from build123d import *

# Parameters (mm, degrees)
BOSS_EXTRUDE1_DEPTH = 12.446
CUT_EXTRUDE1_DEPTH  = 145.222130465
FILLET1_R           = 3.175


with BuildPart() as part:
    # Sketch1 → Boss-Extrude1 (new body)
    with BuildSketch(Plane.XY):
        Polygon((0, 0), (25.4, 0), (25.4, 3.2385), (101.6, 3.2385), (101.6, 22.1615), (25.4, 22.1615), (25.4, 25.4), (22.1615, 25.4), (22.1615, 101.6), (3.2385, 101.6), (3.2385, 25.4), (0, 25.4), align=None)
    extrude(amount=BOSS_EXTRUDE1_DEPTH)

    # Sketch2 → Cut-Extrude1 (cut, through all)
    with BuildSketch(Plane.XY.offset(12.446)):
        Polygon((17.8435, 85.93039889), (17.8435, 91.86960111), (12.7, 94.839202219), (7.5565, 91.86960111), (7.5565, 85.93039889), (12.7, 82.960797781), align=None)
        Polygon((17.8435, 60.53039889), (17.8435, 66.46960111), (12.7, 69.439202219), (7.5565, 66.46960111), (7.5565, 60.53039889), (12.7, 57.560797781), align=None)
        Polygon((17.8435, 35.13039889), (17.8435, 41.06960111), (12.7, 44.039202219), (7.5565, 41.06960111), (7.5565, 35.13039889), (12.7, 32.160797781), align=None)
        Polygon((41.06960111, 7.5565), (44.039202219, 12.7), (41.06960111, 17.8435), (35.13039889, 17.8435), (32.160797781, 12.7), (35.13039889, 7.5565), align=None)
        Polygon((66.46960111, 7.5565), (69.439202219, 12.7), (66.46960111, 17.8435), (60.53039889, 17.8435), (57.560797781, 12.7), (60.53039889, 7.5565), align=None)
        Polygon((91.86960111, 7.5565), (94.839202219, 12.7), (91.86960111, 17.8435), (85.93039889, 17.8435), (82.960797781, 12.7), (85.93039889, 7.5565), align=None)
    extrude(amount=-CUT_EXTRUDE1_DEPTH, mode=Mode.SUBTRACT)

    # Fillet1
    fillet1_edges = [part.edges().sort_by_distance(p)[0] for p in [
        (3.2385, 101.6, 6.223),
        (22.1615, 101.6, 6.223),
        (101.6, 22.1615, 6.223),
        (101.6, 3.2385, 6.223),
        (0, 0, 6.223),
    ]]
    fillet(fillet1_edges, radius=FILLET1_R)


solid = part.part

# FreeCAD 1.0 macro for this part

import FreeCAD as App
import Part
import Sketcher
from FreeCAD import Vector
Q = App.Units.Quantity


def edges_at(feature, points):
    """Names of the edges that pass closest to the given points."""
    edges = feature.Shape.Edges
    near = lambda p: min(range(len(edges)), key=lambda i: edges[i].distToShape(Part.Vertex(*p))[0])
    return sorted({f"Edge{near(p) + 1}" for p in points})

doc = App.newDocument("Part")
body = doc.addObject("PartDesign::Body", "Body")

# Sketch on XY plane
sketch1 = doc.addObject("Sketcher::SketchObject", "Sketch")
body.addObject(sketch1)
sketch1.AttachmentSupport = (doc.XY_Plane, [""])
sketch1.MapMode = "FlatFace"
sketch1.addGeometry(Part.LineSegment(Vector(0, 0, 0), Vector(25.4, 0, 0)), False)
sketch1.addGeometry(Part.LineSegment(Vector(25.4, 0, 0), Vector(25.4, 3.2385, 0)), False)
sketch1.addGeometry(Part.LineSegment(Vector(25.4, 3.2385, 0), Vector(101.6, 3.2385, 0)), False)
sketch1.addGeometry(Part.LineSegment(Vector(101.6, 3.2385, 0), Vector(101.6, 22.1615, 0)), False)
sketch1.addGeometry(Part.LineSegment(Vector(101.6, 22.1615, 0), Vector(25.4, 22.1615, 0)), False)
sketch1.addGeometry(Part.LineSegment(Vector(25.4, 22.1615, 0), Vector(25.4, 25.4, 0)), False)
sketch1.addGeometry(Part.LineSegment(Vector(25.4, 25.4, 0), Vector(22.1615, 25.4, 0)), False)
sketch1.addGeometry(Part.LineSegment(Vector(22.1615, 25.4, 0), Vector(22.1615, 101.6, 0)), False)
sketch1.addGeometry(Part.LineSegment(Vector(22.1615, 101.6, 0), Vector(3.2385, 101.6, 0)), False)
sketch1.addGeometry(Part.LineSegment(Vector(3.2385, 101.6, 0), Vector(3.2385, 25.4, 0)), False)
sketch1.addGeometry(Part.LineSegment(Vector(3.2385, 25.4, 0), Vector(0, 25.4, 0)), False)
sketch1.addGeometry(Part.LineSegment(Vector(0, 25.4, 0), Vector(0, 0, 0)), False)
sketch1.addConstraint(Sketcher.Constraint("Coincident", 0, 2, 1, 1))
sketch1.addConstraint(Sketcher.Constraint("Coincident", 1, 2, 2, 1))
sketch1.addConstraint(Sketcher.Constraint("Coincident", 2, 2, 3, 1))
sketch1.addConstraint(Sketcher.Constraint("Coincident", 3, 2, 4, 1))
sketch1.addConstraint(Sketcher.Constraint("Coincident", 4, 2, 5, 1))
sketch1.addConstraint(Sketcher.Constraint("Coincident", 5, 2, 6, 1))
sketch1.addConstraint(Sketcher.Constraint("Coincident", 6, 2, 7, 1))
sketch1.addConstraint(Sketcher.Constraint("Coincident", 7, 2, 8, 1))
sketch1.addConstraint(Sketcher.Constraint("Coincident", 8, 2, 9, 1))
sketch1.addConstraint(Sketcher.Constraint("Coincident", 9, 2, 10, 1))
sketch1.addConstraint(Sketcher.Constraint("Coincident", 10, 2, 11, 1))
sketch1.addConstraint(Sketcher.Constraint("Coincident", 11, 2, 0, 1))
sketch1.addConstraint(Sketcher.Constraint("Horizontal", 0))
sketch1.addConstraint(Sketcher.Constraint("Vertical", 1))
sketch1.addConstraint(Sketcher.Constraint("Horizontal", 2))
sketch1.addConstraint(Sketcher.Constraint("Vertical", 3))
sketch1.addConstraint(Sketcher.Constraint("Horizontal", 4))
sketch1.addConstraint(Sketcher.Constraint("Vertical", 5))
sketch1.addConstraint(Sketcher.Constraint("Horizontal", 6))
sketch1.addConstraint(Sketcher.Constraint("Vertical", 7))
sketch1.addConstraint(Sketcher.Constraint("Horizontal", 8))
sketch1.addConstraint(Sketcher.Constraint("Vertical", 9))
sketch1.addConstraint(Sketcher.Constraint("Horizontal", 10))
sketch1.addConstraint(Sketcher.Constraint("Vertical", 11))
sketch1.addConstraint(Sketcher.Constraint("Coincident", 11, 2, -1, 1))
sketch1.addConstraint(Sketcher.Constraint("Horizontal", 6, 2, 9, 2))
sketch1.addConstraint(Sketcher.Constraint("Vertical", 1, 2, 4, 2))
sketch1.addConstraint(Sketcher.Constraint("Equal", 6, 10))
sketch1.addConstraint(Sketcher.Constraint("Equal", 10, 1))
sketch1.addConstraint(Sketcher.Constraint("Equal", 8, 3))
sketch1.addConstraint(Sketcher.Constraint("Equal", 1, 5))
sketch1.addConstraint(Sketcher.Constraint("Equal", 4, 7))
sketch1.addConstraint(Sketcher.Constraint("DistanceX", 0, 1, 0, 2, Q("1 in")))
sketch1.addConstraint(Sketcher.Constraint("DistanceX", 2, 1, 2, 2, Q("3 in")))
sketch1.addConstraint(Sketcher.Constraint("DistanceX", 8, 2, 8, 1, Q("0.745 in")))
pad1 = doc.addObject("PartDesign::Pad", "Pad")
body.addObject(pad1)
pad1.Profile = sketch1
pad1.Length = Q("0.49 in")

# Sketch on XY plane
sketch2 = doc.addObject("Sketcher::SketchObject", "Sketch001")
body.addObject(sketch2)
sketch2.AttachmentSupport = (doc.XY_Plane, [""])
sketch2.MapMode = "FlatFace"
sketch2.AttachmentOffset = App.Placement(Vector(0, 0, 0.49 * 25.4), App.Rotation())
sketch2.addGeometry(Part.LineSegment(Vector(17.8435, 85.930399, 0), Vector(17.8435, 91.869601, 0)), False)
sketch2.addGeometry(Part.LineSegment(Vector(17.8435, 91.869601, 0), Vector(12.7, 94.839202, 0)), False)
sketch2.addGeometry(Part.LineSegment(Vector(12.7, 94.839202, 0), Vector(7.5565, 91.869601, 0)), False)
sketch2.addGeometry(Part.LineSegment(Vector(7.5565, 91.869601, 0), Vector(7.5565, 85.930399, 0)), False)
sketch2.addGeometry(Part.LineSegment(Vector(7.5565, 85.930399, 0), Vector(12.7, 82.960798, 0)), False)
sketch2.addGeometry(Part.LineSegment(Vector(12.7, 82.960798, 0), Vector(17.8435, 85.930399, 0)), False)
sketch2.addGeometry(Part.LineSegment(Vector(17.8435, 60.530399, 0), Vector(17.8435, 66.469601, 0)), False)
sketch2.addGeometry(Part.LineSegment(Vector(17.8435, 66.469601, 0), Vector(12.7, 69.439202, 0)), False)
sketch2.addGeometry(Part.LineSegment(Vector(12.7, 69.439202, 0), Vector(7.5565, 66.469601, 0)), False)
sketch2.addGeometry(Part.LineSegment(Vector(7.5565, 66.469601, 0), Vector(7.5565, 60.530399, 0)), False)
sketch2.addGeometry(Part.LineSegment(Vector(7.5565, 60.530399, 0), Vector(12.7, 57.560798, 0)), False)
sketch2.addGeometry(Part.LineSegment(Vector(12.7, 57.560798, 0), Vector(17.8435, 60.530399, 0)), False)
sketch2.addGeometry(Part.LineSegment(Vector(17.8435, 35.130399, 0), Vector(17.8435, 41.069601, 0)), False)
sketch2.addGeometry(Part.LineSegment(Vector(17.8435, 41.069601, 0), Vector(12.7, 44.039202, 0)), False)
sketch2.addGeometry(Part.LineSegment(Vector(12.7, 44.039202, 0), Vector(7.5565, 41.069601, 0)), False)
sketch2.addGeometry(Part.LineSegment(Vector(7.5565, 41.069601, 0), Vector(7.5565, 35.130399, 0)), False)
sketch2.addGeometry(Part.LineSegment(Vector(7.5565, 35.130399, 0), Vector(12.7, 32.160798, 0)), False)
sketch2.addGeometry(Part.LineSegment(Vector(12.7, 32.160798, 0), Vector(17.8435, 35.130399, 0)), False)
sketch2.addGeometry(Part.LineSegment(Vector(41.069601, 7.5565, 0), Vector(44.039202, 12.7, 0)), False)
sketch2.addGeometry(Part.LineSegment(Vector(44.039202, 12.7, 0), Vector(41.069601, 17.8435, 0)), False)
sketch2.addGeometry(Part.LineSegment(Vector(41.069601, 17.8435, 0), Vector(35.130399, 17.8435, 0)), False)
sketch2.addGeometry(Part.LineSegment(Vector(35.130399, 17.8435, 0), Vector(32.160798, 12.7, 0)), False)
sketch2.addGeometry(Part.LineSegment(Vector(32.160798, 12.7, 0), Vector(35.130399, 7.5565, 0)), False)
sketch2.addGeometry(Part.LineSegment(Vector(35.130399, 7.5565, 0), Vector(41.069601, 7.5565, 0)), False)
sketch2.addGeometry(Part.LineSegment(Vector(66.469601, 7.5565, 0), Vector(69.439202, 12.7, 0)), False)
sketch2.addGeometry(Part.LineSegment(Vector(69.439202, 12.7, 0), Vector(66.469601, 17.8435, 0)), False)
sketch2.addGeometry(Part.LineSegment(Vector(66.469601, 17.8435, 0), Vector(60.530399, 17.8435, 0)), False)
sketch2.addGeometry(Part.LineSegment(Vector(60.530399, 17.8435, 0), Vector(57.560798, 12.7, 0)), False)
sketch2.addGeometry(Part.LineSegment(Vector(57.560798, 12.7, 0), Vector(60.530399, 7.5565, 0)), False)
sketch2.addGeometry(Part.LineSegment(Vector(60.530399, 7.5565, 0), Vector(66.469601, 7.5565, 0)), False)
sketch2.addGeometry(Part.LineSegment(Vector(91.869601, 7.5565, 0), Vector(94.839202, 12.7, 0)), False)
sketch2.addGeometry(Part.LineSegment(Vector(94.839202, 12.7, 0), Vector(91.869601, 17.8435, 0)), False)
sketch2.addGeometry(Part.LineSegment(Vector(91.869601, 17.8435, 0), Vector(85.930399, 17.8435, 0)), False)
sketch2.addGeometry(Part.LineSegment(Vector(85.930399, 17.8435, 0), Vector(82.960798, 12.7, 0)), False)
sketch2.addGeometry(Part.LineSegment(Vector(82.960798, 12.7, 0), Vector(85.930399, 7.5565, 0)), False)
sketch2.addGeometry(Part.LineSegment(Vector(85.930399, 7.5565, 0), Vector(91.869601, 7.5565, 0)), False)
sketch2.addConstraint(Sketcher.Constraint("Coincident", 0, 2, 1, 1))
sketch2.addConstraint(Sketcher.Constraint("Coincident", 1, 2, 2, 1))
sketch2.addConstraint(Sketcher.Constraint("Coincident", 2, 2, 3, 1))
sketch2.addConstraint(Sketcher.Constraint("Coincident", 3, 2, 4, 1))
sketch2.addConstraint(Sketcher.Constraint("Coincident", 4, 2, 5, 1))
sketch2.addConstraint(Sketcher.Constraint("Coincident", 5, 2, 0, 1))
sketch2.addConstraint(Sketcher.Constraint("Coincident", 6, 2, 7, 1))
sketch2.addConstraint(Sketcher.Constraint("Coincident", 7, 2, 8, 1))
sketch2.addConstraint(Sketcher.Constraint("Coincident", 8, 2, 9, 1))
sketch2.addConstraint(Sketcher.Constraint("Coincident", 9, 2, 10, 1))
sketch2.addConstraint(Sketcher.Constraint("Coincident", 10, 2, 11, 1))
sketch2.addConstraint(Sketcher.Constraint("Coincident", 11, 2, 6, 1))
sketch2.addConstraint(Sketcher.Constraint("Coincident", 12, 2, 13, 1))
sketch2.addConstraint(Sketcher.Constraint("Coincident", 13, 2, 14, 1))
sketch2.addConstraint(Sketcher.Constraint("Coincident", 14, 2, 15, 1))
sketch2.addConstraint(Sketcher.Constraint("Coincident", 15, 2, 16, 1))
sketch2.addConstraint(Sketcher.Constraint("Coincident", 16, 2, 17, 1))
sketch2.addConstraint(Sketcher.Constraint("Coincident", 17, 2, 12, 1))
sketch2.addConstraint(Sketcher.Constraint("Coincident", 18, 2, 19, 1))
sketch2.addConstraint(Sketcher.Constraint("Coincident", 19, 2, 20, 1))
sketch2.addConstraint(Sketcher.Constraint("Coincident", 20, 2, 21, 1))
sketch2.addConstraint(Sketcher.Constraint("Coincident", 21, 2, 22, 1))
sketch2.addConstraint(Sketcher.Constraint("Coincident", 22, 2, 23, 1))
sketch2.addConstraint(Sketcher.Constraint("Coincident", 23, 2, 18, 1))
sketch2.addConstraint(Sketcher.Constraint("Coincident", 24, 2, 25, 1))
sketch2.addConstraint(Sketcher.Constraint("Coincident", 25, 2, 26, 1))
sketch2.addConstraint(Sketcher.Constraint("Coincident", 26, 2, 27, 1))
sketch2.addConstraint(Sketcher.Constraint("Coincident", 27, 2, 28, 1))
sketch2.addConstraint(Sketcher.Constraint("Coincident", 28, 2, 29, 1))
sketch2.addConstraint(Sketcher.Constraint("Coincident", 29, 2, 24, 1))
sketch2.addConstraint(Sketcher.Constraint("Coincident", 30, 2, 31, 1))
sketch2.addConstraint(Sketcher.Constraint("Coincident", 31, 2, 32, 1))
sketch2.addConstraint(Sketcher.Constraint("Coincident", 32, 2, 33, 1))
sketch2.addConstraint(Sketcher.Constraint("Coincident", 33, 2, 34, 1))
sketch2.addConstraint(Sketcher.Constraint("Coincident", 34, 2, 35, 1))
sketch2.addConstraint(Sketcher.Constraint("Coincident", 35, 2, 30, 1))
sketch2.addConstraint(Sketcher.Constraint("Vertical", 0))
sketch2.addConstraint(Sketcher.Constraint("Vertical", 3))
sketch2.addConstraint(Sketcher.Constraint("Vertical", 6))
sketch2.addConstraint(Sketcher.Constraint("Vertical", 9))
sketch2.addConstraint(Sketcher.Constraint("Vertical", 12))
sketch2.addConstraint(Sketcher.Constraint("Vertical", 15))
sketch2.addConstraint(Sketcher.Constraint("Horizontal", 20))
sketch2.addConstraint(Sketcher.Constraint("Horizontal", 23))
sketch2.addConstraint(Sketcher.Constraint("Horizontal", 26))
sketch2.addConstraint(Sketcher.Constraint("Horizontal", 29))
sketch2.addConstraint(Sketcher.Constraint("Horizontal", 32))
sketch2.addConstraint(Sketcher.Constraint("Horizontal", 35))
sketch2.addConstraint(Sketcher.Constraint("Parallel", 1, 4))
sketch2.addConstraint(Sketcher.Constraint("Parallel", 2, 5))
sketch2.addConstraint(Sketcher.Constraint("Parallel", 4, 7))
sketch2.addConstraint(Sketcher.Constraint("Parallel", 5, 8))
sketch2.addConstraint(Sketcher.Constraint("Parallel", 7, 10))
sketch2.addConstraint(Sketcher.Constraint("Parallel", 8, 11))
sketch2.addConstraint(Sketcher.Constraint("Parallel", 10, 13))
sketch2.addConstraint(Sketcher.Constraint("Parallel", 11, 14))
sketch2.addConstraint(Sketcher.Constraint("Parallel", 13, 16))
sketch2.addConstraint(Sketcher.Constraint("Parallel", 14, 17))
sketch2.addConstraint(Sketcher.Constraint("Perpendicular", 16, 18))
sketch2.addConstraint(Sketcher.Constraint("Perpendicular", 17, 19))
sketch2.addConstraint(Sketcher.Constraint("Parallel", 18, 21))
sketch2.addConstraint(Sketcher.Constraint("Parallel", 19, 22))
sketch2.addConstraint(Sketcher.Constraint("Parallel", 21, 24))
sketch2.addConstraint(Sketcher.Constraint("Parallel", 22, 25))
sketch2.addConstraint(Sketcher.Constraint("Parallel", 24, 27))
sketch2.addConstraint(Sketcher.Constraint("Parallel", 25, 28))
sketch2.addConstraint(Sketcher.Constraint("Parallel", 27, 30))
sketch2.addConstraint(Sketcher.Constraint("Parallel", 28, 31))
sketch2.addConstraint(Sketcher.Constraint("Parallel", 30, 33))
sketch2.addConstraint(Sketcher.Constraint("Parallel", 31, 34))
sketch2.addConstraint(Sketcher.Constraint("Horizontal", 0, 2, 2, 2))
sketch2.addConstraint(Sketcher.Constraint("Horizontal", 3, 2, 5, 2))
sketch2.addConstraint(Sketcher.Constraint("Horizontal", 6, 2, 8, 2))
sketch2.addConstraint(Sketcher.Constraint("Horizontal", 9, 2, 11, 2))
sketch2.addConstraint(Sketcher.Constraint("Horizontal", 12, 2, 14, 2))
sketch2.addConstraint(Sketcher.Constraint("Horizontal", 15, 2, 17, 2))
sketch2.addConstraint(Sketcher.Constraint("Horizontal", 18, 2, 21, 2))
sketch2.addConstraint(Sketcher.Constraint("Horizontal", 21, 2, 24, 2))
sketch2.addConstraint(Sketcher.Constraint("Horizontal", 20, 2, 25, 2))
sketch2.addConstraint(Sketcher.Constraint("Horizontal", 24, 2, 27, 2))
sketch2.addConstraint(Sketcher.Constraint("Horizontal", 23, 2, 28, 2))
sketch2.addConstraint(Sketcher.Constraint("Horizontal", 27, 2, 30, 2))
sketch2.addConstraint(Sketcher.Constraint("Horizontal", 26, 2, 31, 2))
sketch2.addConstraint(Sketcher.Constraint("Horizontal", 30, 2, 33, 2))
sketch2.addConstraint(Sketcher.Constraint("Horizontal", 29, 2, 34, 2))
sketch2.addConstraint(Sketcher.Constraint("Vertical", 1, 2, 4, 2))
sketch2.addConstraint(Sketcher.Constraint("Vertical", 5, 2, 6, 2))
sketch2.addConstraint(Sketcher.Constraint("Vertical", 4, 2, 7, 2))
sketch2.addConstraint(Sketcher.Constraint("Vertical", 11, 2, 12, 2))
sketch2.addConstraint(Sketcher.Constraint("Vertical", 10, 2, 13, 2))
sketch2.addConstraint(Sketcher.Constraint("Vertical", 20, 2, 22, 2))
sketch2.addConstraint(Sketcher.Constraint("Equal", 23, 26))
sketch2.addConstraint(Sketcher.Constraint("Equal", 29, 32))
sketch2.addConstraint(Sketcher.Constraint("Equal", 35, 0))
sketch2.addConstraint(Sketcher.Constraint("Equal", 3, 6))
sketch2.addConstraint(Sketcher.Constraint("Equal", 9, 12))
sketch2.addConstraint(Sketcher.Constraint("Equal", 17, 18))
sketch2.addConstraint(Sketcher.Constraint("Angle", 1, Q("150 deg")))
sketch2.addConstraint(Sketcher.Constraint("DistanceY", 6, 2, 0, 2, Q("1 in")))
sketch2.addConstraint(Sketcher.Constraint("DistanceY", 12, 2, 6, 2, Q("1 in")))
sketch2.addConstraint(Sketcher.Constraint("DistanceX", 18, 2, 24, 2, Q("1 in")))
sketch2.addConstraint(Sketcher.Constraint("DistanceX", 24, 2, 30, 2, Q("1 in")))
sketch2.addConstraint(Sketcher.Constraint("DistanceX", -1, 1, 1, 2, Q("0.5 in")))
sketch2.addConstraint(Sketcher.Constraint("DistanceY", -1, 1, 18, 2, Q("0.5 in")))
sketch2.addConstraint(Sketcher.Constraint("DistanceX", 2, 2, 0, 2, Q("0.405 in")))
sketch2.addConstraint(Sketcher.Constraint("DistanceY", -1, 1, 0, 2, 91.869601))
sketch2.addConstraint(Sketcher.Constraint("DistanceY", -1, 1, 3, 2, 85.930399))
sketch2.addConstraint(Sketcher.Constraint("DistanceX", -1, 1, 19, 2, 41.069601))
pocket1 = doc.addObject("PartDesign::Pocket", "Pocket")
body.addObject(pocket1)
pocket1.Profile = sketch2
pocket1.Type = "ThroughAll"
doc.recompute()

fillet = doc.addObject("PartDesign::Fillet", "Fillet")
body.addObject(fillet)
fillet.Base = (pocket1, edges_at(pocket1, [
    (3.239, 101.6, 6.223),
    (22.162, 101.6, 6.223),
    (101.6, 22.162, 6.223),
    (101.6, 3.239, 6.223),
    (0, 0, 6.223),
]))
fillet.Radius = Q("0.125 in")

doc.recompute()
